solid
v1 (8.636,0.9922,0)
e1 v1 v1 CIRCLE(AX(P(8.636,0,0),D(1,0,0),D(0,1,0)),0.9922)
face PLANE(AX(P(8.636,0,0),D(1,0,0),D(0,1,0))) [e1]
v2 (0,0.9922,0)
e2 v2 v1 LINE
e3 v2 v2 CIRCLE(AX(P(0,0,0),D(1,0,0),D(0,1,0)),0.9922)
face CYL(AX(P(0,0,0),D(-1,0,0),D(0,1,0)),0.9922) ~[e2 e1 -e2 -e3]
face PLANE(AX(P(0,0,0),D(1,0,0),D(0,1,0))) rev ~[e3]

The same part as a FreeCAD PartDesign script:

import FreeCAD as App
import Part
import Sketcher
from FreeCAD import Vector
Q = App.Units.Quantity

doc = App.newDocument("Part")
body = doc.addObject("PartDesign::Body", "Body")

# Sketch on YZ plane
sketch1 = body.newObject("Sketcher::SketchObject", "Sketch")
sketch1.AttachmentSupport = (doc.getObject("YZ_Plane"), [""])
sketch1.MapMode = "FlatFace"
sketch1.addGeometry(Part.Circle(Vector(0, 0, 0), Vector(0, 0, 1), 0.9922), False)
sketch1.addConstraint([
    Sketcher.Constraint("Coincident", 0, 3, -1, 1),
    Sketcher.Constraint("Diameter", 0, Q("0.078126 in")),
])
pad1 = body.newObject("PartDesign::Pad", "Pad")
pad1.Profile = sketch1
pad1.Length = Q("0.34 in")

doc.recompute()
